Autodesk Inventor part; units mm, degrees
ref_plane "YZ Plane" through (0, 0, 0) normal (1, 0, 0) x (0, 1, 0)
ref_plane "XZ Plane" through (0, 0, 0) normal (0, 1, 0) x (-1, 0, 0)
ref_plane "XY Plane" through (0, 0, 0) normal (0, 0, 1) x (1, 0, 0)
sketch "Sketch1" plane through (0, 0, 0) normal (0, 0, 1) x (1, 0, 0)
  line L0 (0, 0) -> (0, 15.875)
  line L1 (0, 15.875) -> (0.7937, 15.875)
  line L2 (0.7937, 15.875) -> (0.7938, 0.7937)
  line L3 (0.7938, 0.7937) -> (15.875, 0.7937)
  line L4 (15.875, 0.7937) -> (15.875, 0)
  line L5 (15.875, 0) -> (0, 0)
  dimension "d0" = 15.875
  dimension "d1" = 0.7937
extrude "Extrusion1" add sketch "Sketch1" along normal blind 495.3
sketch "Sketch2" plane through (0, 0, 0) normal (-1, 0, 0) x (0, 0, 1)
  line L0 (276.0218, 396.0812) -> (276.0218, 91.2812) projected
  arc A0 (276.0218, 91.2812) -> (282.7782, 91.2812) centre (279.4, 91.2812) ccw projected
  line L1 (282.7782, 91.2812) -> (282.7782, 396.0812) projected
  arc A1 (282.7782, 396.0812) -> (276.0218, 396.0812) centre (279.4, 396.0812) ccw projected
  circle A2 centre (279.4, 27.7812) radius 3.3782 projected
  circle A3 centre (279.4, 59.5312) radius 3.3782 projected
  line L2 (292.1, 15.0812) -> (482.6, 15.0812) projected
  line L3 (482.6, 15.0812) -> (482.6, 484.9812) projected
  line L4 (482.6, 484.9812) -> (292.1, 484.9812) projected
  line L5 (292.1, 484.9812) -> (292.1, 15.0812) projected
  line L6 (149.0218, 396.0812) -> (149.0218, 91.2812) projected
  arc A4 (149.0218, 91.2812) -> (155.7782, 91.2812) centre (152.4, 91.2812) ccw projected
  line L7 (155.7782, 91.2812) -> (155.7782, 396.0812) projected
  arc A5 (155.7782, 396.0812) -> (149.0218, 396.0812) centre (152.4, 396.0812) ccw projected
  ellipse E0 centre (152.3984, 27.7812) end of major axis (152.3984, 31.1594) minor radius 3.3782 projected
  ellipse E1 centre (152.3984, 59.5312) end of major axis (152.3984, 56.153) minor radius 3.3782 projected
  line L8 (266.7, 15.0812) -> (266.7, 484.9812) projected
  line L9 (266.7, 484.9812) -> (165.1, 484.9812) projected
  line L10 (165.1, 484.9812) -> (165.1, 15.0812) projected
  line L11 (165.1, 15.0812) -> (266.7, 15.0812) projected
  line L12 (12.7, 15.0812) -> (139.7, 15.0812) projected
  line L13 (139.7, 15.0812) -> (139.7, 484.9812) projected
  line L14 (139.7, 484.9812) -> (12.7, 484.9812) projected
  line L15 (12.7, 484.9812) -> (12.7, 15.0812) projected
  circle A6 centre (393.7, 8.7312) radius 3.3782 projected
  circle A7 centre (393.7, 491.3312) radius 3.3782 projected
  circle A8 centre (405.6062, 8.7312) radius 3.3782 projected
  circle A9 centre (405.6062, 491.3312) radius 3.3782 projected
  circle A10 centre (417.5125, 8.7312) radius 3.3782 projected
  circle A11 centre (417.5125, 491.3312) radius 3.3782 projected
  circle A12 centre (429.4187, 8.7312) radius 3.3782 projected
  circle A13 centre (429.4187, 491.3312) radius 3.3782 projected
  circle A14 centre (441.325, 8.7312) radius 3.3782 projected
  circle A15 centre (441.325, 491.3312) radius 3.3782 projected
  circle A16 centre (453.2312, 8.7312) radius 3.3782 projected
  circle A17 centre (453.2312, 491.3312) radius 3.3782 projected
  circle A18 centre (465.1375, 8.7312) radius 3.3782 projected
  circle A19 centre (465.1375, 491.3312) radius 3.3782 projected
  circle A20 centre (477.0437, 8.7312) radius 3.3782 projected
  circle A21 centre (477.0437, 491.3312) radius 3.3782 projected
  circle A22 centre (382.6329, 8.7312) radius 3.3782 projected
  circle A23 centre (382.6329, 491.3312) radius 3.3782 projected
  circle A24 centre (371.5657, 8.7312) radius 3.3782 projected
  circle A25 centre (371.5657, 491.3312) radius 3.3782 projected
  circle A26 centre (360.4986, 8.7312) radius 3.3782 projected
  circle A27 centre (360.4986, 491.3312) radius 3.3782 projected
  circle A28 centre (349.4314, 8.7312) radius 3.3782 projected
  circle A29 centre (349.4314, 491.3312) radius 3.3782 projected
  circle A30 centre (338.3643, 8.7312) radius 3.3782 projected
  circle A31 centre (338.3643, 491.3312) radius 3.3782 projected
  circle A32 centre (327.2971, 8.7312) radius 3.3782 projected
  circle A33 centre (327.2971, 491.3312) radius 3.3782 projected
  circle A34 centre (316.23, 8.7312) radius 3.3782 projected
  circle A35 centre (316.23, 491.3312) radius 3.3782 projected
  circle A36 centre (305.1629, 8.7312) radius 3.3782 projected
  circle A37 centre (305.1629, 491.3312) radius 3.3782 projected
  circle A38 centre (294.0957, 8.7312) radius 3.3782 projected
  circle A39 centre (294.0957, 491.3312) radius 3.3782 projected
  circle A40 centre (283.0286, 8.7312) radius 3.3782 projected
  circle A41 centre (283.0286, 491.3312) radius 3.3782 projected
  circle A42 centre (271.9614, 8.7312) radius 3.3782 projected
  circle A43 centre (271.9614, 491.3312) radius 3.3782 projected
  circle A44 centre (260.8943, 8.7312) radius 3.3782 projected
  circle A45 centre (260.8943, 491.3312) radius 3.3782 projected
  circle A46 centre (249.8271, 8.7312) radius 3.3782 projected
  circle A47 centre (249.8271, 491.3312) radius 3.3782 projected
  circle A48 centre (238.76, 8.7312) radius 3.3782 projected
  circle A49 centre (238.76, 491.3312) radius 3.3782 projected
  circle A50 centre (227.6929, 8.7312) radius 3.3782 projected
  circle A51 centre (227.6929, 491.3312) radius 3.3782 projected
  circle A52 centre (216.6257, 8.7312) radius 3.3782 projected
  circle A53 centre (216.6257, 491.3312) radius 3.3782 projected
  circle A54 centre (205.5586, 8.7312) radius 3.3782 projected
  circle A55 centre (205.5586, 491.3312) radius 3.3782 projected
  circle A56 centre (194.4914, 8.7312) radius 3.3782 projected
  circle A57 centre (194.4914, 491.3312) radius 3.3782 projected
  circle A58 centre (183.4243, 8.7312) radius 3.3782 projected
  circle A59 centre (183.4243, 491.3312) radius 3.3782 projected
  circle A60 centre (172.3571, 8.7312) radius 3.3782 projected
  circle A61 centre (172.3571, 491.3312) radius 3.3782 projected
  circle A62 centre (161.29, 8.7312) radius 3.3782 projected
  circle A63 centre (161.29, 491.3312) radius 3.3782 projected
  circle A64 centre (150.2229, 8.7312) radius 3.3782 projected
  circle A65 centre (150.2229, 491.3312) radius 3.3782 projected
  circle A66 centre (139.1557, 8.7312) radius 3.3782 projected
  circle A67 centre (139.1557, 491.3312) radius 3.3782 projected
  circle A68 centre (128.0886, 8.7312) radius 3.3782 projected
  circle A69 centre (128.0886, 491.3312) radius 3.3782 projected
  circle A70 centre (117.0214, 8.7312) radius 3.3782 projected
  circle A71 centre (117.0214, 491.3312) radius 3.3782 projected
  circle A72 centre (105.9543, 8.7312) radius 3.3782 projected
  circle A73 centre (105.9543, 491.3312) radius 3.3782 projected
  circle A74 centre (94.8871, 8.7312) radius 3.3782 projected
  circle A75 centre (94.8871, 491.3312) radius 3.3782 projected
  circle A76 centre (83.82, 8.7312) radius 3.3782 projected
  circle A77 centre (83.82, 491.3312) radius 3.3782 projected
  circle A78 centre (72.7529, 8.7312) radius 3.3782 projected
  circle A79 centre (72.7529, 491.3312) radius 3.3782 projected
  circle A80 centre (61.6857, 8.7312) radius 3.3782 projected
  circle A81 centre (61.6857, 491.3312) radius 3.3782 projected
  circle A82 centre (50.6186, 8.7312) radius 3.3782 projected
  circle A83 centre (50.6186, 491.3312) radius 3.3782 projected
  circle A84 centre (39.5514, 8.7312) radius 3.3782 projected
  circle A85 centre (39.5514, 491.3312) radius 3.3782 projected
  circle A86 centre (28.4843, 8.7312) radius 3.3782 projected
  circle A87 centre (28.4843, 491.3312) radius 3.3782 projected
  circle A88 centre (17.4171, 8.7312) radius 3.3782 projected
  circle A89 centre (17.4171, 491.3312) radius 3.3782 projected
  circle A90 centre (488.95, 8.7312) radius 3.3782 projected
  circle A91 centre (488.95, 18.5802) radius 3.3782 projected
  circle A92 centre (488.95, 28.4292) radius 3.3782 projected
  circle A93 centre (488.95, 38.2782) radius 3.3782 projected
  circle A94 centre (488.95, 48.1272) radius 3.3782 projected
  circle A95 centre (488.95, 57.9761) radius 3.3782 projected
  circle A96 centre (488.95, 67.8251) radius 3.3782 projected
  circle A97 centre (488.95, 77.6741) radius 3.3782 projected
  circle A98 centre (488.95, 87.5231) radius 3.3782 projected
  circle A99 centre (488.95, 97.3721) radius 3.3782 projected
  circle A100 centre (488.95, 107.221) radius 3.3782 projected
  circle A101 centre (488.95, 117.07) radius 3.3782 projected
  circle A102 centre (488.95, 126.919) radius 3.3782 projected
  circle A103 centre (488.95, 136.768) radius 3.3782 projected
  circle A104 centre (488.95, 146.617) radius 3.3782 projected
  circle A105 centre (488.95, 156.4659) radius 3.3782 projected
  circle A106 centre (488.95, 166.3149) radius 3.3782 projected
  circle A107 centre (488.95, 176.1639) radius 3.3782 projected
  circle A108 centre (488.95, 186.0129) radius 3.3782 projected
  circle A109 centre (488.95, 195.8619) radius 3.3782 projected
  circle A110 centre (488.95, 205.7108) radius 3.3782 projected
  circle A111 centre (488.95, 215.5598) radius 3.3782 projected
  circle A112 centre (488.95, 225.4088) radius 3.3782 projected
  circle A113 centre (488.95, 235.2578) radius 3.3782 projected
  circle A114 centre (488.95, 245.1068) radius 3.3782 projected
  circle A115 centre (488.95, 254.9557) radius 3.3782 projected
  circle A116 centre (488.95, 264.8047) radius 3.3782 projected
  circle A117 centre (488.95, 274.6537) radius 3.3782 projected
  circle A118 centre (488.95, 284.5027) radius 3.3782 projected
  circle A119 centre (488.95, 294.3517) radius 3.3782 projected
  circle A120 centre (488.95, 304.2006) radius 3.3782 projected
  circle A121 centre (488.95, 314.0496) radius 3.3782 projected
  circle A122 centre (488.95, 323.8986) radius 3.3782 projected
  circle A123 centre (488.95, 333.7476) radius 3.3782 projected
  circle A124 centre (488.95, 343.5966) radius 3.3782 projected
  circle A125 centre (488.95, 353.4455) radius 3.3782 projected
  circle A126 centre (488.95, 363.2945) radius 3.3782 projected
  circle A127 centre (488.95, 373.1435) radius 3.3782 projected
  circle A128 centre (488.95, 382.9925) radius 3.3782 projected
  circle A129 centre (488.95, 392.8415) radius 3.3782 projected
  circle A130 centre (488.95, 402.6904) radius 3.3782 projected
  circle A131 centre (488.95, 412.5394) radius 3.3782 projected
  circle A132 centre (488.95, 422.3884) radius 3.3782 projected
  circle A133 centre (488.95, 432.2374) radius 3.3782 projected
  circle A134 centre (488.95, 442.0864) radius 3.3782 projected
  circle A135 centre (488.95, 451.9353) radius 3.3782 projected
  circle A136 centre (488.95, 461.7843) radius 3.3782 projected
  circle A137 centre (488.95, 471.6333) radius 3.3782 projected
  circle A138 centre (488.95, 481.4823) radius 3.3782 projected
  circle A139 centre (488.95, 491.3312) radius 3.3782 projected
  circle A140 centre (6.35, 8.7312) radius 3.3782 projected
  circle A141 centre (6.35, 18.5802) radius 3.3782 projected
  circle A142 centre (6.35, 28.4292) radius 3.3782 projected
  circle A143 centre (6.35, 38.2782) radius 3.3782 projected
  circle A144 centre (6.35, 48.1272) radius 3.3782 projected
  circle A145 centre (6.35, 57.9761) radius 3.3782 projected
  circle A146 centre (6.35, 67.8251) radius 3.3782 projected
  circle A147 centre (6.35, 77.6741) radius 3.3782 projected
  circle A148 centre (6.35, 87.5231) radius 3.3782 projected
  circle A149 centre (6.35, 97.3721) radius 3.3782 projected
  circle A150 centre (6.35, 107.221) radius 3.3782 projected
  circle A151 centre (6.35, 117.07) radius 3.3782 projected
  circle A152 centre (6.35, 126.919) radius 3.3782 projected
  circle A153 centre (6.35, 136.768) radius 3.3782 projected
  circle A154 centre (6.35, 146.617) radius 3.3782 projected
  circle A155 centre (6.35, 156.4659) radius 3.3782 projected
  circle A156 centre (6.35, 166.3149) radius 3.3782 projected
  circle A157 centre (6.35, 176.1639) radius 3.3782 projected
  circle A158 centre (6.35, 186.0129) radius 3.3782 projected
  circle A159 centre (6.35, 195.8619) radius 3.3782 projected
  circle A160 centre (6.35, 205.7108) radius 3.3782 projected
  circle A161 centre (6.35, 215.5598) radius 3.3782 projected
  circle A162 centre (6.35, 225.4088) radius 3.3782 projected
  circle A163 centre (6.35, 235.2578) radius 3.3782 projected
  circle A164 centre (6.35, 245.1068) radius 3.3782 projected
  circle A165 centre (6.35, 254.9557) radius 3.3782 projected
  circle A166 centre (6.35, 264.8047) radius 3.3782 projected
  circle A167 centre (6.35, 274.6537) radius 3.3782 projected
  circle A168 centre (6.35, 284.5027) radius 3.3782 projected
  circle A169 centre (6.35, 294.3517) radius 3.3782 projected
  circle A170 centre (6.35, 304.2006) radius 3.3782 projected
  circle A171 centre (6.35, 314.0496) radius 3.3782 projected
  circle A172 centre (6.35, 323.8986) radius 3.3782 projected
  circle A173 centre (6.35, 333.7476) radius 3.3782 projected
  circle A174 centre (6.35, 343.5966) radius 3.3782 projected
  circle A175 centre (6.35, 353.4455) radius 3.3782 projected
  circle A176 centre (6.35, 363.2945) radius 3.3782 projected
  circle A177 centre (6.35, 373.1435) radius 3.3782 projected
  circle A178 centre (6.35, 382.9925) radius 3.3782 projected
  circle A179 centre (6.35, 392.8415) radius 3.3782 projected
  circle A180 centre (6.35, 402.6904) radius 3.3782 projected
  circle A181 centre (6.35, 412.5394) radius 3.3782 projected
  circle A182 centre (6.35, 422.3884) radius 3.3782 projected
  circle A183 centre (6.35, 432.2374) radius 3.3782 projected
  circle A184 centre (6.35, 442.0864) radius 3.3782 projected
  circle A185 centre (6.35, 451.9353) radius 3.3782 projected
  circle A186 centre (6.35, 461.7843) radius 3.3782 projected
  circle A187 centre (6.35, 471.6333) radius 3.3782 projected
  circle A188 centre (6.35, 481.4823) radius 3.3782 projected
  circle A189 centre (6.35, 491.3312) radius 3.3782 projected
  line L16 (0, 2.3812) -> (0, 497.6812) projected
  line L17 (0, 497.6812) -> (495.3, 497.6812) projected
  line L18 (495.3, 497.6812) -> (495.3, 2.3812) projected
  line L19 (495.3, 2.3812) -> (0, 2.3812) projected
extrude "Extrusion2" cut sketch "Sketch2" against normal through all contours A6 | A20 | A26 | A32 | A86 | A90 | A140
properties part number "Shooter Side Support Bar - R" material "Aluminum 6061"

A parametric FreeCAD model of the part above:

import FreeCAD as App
import Part
import Sketcher
from FreeCAD import Vector
Q = App.Units.Quantity

doc = App.newDocument("Part")
body = doc.addObject("PartDesign::Body", "Body")

# Sketch on XY plane
sketch1 = body.newObject("Sketcher::SketchObject", "Sketch")
sketch1.AttachmentSupport = (doc.getObject("XY_Plane"), [""])
sketch1.MapMode = "FlatFace"
sketch1.addGeometry(Part.LineSegment(Vector(0, 15.9, 0), Vector(0, 0, 0)), False)
sketch1.addGeometry(Part.LineSegment(Vector(0, 0, 0), Vector(15.9, 0, 0)), False)
sketch1.addGeometry(Part.LineSegment(Vector(15.9, 0, 0), Vector(15.9, 0.8, 0)), False)
sketch1.addGeometry(Part.LineSegment(Vector(15.9, 0.8, 0), Vector(0.8, 0.8, 0)), False)
sketch1.addGeometry(Part.LineSegment(Vector(0.8, 0.8, 0), Vector(0.8, 15.9, 0)), False)
sketch1.addGeometry(Part.LineSegment(Vector(0.8, 15.9, 0), Vector(0, 15.9, 0)), False)
sketch1.addConstraint(Sketcher.Constraint("Coincident", 0, 2, 1, 1))
sketch1.addConstraint(Sketcher.Constraint("Coincident", 1, 2, 2, 1))
sketch1.addConstraint(Sketcher.Constraint("Coincident", 2, 2, 3, 1))
sketch1.addConstraint(Sketcher.Constraint("Coincident", 3, 2, 4, 1))
sketch1.addConstraint(Sketcher.Constraint("Coincident", 4, 2, 5, 1))
sketch1.addConstraint(Sketcher.Constraint("Coincident", 5, 2, 0, 1))
sketch1.addConstraint(Sketcher.Constraint("Vertical", 0))
sketch1.addConstraint(Sketcher.Constraint("Horizontal", 1))
sketch1.addConstraint(Sketcher.Constraint("Vertical", 2))
sketch1.addConstraint(Sketcher.Constraint("Horizontal", 3))
sketch1.addConstraint(Sketcher.Constraint("Vertical", 4))
sketch1.addConstraint(Sketcher.Constraint("Horizontal", 5))
sketch1.addConstraint(Sketcher.Constraint("Coincident", 0, 2, -1, 1))
sketch1.addConstraint(Sketcher.Constraint("Equal", 1, 0))
sketch1.addConstraint(Sketcher.Constraint("Equal", 5, 2))
sketch1.addConstraint(Sketcher.Constraint("DistanceX", 1, 1, 1, 2, Q("0.625 in")))
sketch1.addConstraint(Sketcher.Constraint("DistanceX", 5, 2, 5, 1, Q("0.031248 in")))
pad1 = body.newObject("PartDesign::Pad", "Pad")
pad1.Profile = sketch1
pad1.Length = Q("19.5 in")

# Sketch on YZ plane
sketch2 = body.newObject("Sketcher::SketchObject", "Sketch001")
sketch2.AttachmentSupport = (doc.getObject("YZ_Plane"), [""])
sketch2.MapMode = "FlatFace"
sketch2.addGeometry(Part.Circle(Vector(8.7, 393.7, 0), Vector(0, 0, 1), 3.4), False)
sketch2.addGeometry(Part.Circle(Vector(8.7, 477, 0), Vector(0, 0, 1), 3.4), False)
sketch2.addGeometry(Part.Circle(Vector(8.7, 360.5, 0), Vector(0, 0, 1), 3.4), False)
sketch2.addGeometry(Part.Circle(Vector(8.7, 327.3, 0), Vector(0, 0, 1), 3.4), False)
sketch2.addGeometry(Part.Circle(Vector(8.7, 28.5, 0), Vector(0, 0, 1), 3.4), False)
sketch2.addGeometry(Part.Circle(Vector(8.7, 488.9, 0), Vector(0, 0, 1), 3.4), False)
sketch2.addGeometry(Part.Circle(Vector(8.7, 6.3, 0), Vector(0, 0, 1), 3.4), False)
sketch2.addConstraint(Sketcher.Constraint("Equal", 0, 1))
sketch2.addConstraint(Sketcher.Constraint("Equal", 1, 2))
sketch2.addConstraint(Sketcher.Constraint("Equal", 2, 3))
sketch2.addConstraint(Sketcher.Constraint("Equal", 3, 4))
sketch2.addConstraint(Sketcher.Constraint("Equal", 4, 5))
sketch2.addConstraint(Sketcher.Constraint("Equal", 5, 6))
sketch2.addConstraint(Sketcher.Constraint("Vertical", 0, 3, 1, 3))
sketch2.addConstraint(Sketcher.Constraint("Vertical", 1, 3, 2, 3))
sketch2.addConstraint(Sketcher.Constraint("Vertical", 2, 3, 3, 3))
sketch2.addConstraint(Sketcher.Constraint("Vertical", 3, 3, 4, 3))
sketch2.addConstraint(Sketcher.Constraint("Vertical", 4, 3, 5, 3))
sketch2.addConstraint(Sketcher.Constraint("Vertical", 5, 3, 6, 3))
sketch2.addConstraint(Sketcher.Constraint("Diameter", 0, Q("0.266 in")))
sketch2.addConstraint(Sketcher.Constraint("DistanceY", -1, 1, 0, 3, Q("15.5 in")))
sketch2.addConstraint(Sketcher.Constraint("DistanceY", -1, 1, 5, 3, Q("19.25 in")))
sketch2.addConstraint(Sketcher.Constraint("DistanceY", -1, 1, 6, 3, Q("0.25 in")))
sketch2.addConstraint(Sketcher.Constraint("DistanceX", -1, 1, 0, 3, Q("0.343748 in")))
sketch2.addConstraint(Sketcher.Constraint("DistanceY", -1, 1, 1, 3, Q("18.781248 in")))
sketch2.addConstraint(Sketcher.Constraint("DistanceY", 2, 3, 1, 3, Q("4.5884 in")))
sketch2.addConstraint(Sketcher.Constraint("DistanceY", -1, 1, 3, 3, Q("12.8857087 in")))
sketch2.addConstraint(Sketcher.Constraint("DistanceY", -1, 1, 4, 3, 28.4843))
pocket1 = body.newObject("PartDesign::Pocket", "Pocket")
pocket1.Profile = sketch2
pocket1.Type = "ThroughAll"
pocket1.Reversed = True

doc.recompute()
